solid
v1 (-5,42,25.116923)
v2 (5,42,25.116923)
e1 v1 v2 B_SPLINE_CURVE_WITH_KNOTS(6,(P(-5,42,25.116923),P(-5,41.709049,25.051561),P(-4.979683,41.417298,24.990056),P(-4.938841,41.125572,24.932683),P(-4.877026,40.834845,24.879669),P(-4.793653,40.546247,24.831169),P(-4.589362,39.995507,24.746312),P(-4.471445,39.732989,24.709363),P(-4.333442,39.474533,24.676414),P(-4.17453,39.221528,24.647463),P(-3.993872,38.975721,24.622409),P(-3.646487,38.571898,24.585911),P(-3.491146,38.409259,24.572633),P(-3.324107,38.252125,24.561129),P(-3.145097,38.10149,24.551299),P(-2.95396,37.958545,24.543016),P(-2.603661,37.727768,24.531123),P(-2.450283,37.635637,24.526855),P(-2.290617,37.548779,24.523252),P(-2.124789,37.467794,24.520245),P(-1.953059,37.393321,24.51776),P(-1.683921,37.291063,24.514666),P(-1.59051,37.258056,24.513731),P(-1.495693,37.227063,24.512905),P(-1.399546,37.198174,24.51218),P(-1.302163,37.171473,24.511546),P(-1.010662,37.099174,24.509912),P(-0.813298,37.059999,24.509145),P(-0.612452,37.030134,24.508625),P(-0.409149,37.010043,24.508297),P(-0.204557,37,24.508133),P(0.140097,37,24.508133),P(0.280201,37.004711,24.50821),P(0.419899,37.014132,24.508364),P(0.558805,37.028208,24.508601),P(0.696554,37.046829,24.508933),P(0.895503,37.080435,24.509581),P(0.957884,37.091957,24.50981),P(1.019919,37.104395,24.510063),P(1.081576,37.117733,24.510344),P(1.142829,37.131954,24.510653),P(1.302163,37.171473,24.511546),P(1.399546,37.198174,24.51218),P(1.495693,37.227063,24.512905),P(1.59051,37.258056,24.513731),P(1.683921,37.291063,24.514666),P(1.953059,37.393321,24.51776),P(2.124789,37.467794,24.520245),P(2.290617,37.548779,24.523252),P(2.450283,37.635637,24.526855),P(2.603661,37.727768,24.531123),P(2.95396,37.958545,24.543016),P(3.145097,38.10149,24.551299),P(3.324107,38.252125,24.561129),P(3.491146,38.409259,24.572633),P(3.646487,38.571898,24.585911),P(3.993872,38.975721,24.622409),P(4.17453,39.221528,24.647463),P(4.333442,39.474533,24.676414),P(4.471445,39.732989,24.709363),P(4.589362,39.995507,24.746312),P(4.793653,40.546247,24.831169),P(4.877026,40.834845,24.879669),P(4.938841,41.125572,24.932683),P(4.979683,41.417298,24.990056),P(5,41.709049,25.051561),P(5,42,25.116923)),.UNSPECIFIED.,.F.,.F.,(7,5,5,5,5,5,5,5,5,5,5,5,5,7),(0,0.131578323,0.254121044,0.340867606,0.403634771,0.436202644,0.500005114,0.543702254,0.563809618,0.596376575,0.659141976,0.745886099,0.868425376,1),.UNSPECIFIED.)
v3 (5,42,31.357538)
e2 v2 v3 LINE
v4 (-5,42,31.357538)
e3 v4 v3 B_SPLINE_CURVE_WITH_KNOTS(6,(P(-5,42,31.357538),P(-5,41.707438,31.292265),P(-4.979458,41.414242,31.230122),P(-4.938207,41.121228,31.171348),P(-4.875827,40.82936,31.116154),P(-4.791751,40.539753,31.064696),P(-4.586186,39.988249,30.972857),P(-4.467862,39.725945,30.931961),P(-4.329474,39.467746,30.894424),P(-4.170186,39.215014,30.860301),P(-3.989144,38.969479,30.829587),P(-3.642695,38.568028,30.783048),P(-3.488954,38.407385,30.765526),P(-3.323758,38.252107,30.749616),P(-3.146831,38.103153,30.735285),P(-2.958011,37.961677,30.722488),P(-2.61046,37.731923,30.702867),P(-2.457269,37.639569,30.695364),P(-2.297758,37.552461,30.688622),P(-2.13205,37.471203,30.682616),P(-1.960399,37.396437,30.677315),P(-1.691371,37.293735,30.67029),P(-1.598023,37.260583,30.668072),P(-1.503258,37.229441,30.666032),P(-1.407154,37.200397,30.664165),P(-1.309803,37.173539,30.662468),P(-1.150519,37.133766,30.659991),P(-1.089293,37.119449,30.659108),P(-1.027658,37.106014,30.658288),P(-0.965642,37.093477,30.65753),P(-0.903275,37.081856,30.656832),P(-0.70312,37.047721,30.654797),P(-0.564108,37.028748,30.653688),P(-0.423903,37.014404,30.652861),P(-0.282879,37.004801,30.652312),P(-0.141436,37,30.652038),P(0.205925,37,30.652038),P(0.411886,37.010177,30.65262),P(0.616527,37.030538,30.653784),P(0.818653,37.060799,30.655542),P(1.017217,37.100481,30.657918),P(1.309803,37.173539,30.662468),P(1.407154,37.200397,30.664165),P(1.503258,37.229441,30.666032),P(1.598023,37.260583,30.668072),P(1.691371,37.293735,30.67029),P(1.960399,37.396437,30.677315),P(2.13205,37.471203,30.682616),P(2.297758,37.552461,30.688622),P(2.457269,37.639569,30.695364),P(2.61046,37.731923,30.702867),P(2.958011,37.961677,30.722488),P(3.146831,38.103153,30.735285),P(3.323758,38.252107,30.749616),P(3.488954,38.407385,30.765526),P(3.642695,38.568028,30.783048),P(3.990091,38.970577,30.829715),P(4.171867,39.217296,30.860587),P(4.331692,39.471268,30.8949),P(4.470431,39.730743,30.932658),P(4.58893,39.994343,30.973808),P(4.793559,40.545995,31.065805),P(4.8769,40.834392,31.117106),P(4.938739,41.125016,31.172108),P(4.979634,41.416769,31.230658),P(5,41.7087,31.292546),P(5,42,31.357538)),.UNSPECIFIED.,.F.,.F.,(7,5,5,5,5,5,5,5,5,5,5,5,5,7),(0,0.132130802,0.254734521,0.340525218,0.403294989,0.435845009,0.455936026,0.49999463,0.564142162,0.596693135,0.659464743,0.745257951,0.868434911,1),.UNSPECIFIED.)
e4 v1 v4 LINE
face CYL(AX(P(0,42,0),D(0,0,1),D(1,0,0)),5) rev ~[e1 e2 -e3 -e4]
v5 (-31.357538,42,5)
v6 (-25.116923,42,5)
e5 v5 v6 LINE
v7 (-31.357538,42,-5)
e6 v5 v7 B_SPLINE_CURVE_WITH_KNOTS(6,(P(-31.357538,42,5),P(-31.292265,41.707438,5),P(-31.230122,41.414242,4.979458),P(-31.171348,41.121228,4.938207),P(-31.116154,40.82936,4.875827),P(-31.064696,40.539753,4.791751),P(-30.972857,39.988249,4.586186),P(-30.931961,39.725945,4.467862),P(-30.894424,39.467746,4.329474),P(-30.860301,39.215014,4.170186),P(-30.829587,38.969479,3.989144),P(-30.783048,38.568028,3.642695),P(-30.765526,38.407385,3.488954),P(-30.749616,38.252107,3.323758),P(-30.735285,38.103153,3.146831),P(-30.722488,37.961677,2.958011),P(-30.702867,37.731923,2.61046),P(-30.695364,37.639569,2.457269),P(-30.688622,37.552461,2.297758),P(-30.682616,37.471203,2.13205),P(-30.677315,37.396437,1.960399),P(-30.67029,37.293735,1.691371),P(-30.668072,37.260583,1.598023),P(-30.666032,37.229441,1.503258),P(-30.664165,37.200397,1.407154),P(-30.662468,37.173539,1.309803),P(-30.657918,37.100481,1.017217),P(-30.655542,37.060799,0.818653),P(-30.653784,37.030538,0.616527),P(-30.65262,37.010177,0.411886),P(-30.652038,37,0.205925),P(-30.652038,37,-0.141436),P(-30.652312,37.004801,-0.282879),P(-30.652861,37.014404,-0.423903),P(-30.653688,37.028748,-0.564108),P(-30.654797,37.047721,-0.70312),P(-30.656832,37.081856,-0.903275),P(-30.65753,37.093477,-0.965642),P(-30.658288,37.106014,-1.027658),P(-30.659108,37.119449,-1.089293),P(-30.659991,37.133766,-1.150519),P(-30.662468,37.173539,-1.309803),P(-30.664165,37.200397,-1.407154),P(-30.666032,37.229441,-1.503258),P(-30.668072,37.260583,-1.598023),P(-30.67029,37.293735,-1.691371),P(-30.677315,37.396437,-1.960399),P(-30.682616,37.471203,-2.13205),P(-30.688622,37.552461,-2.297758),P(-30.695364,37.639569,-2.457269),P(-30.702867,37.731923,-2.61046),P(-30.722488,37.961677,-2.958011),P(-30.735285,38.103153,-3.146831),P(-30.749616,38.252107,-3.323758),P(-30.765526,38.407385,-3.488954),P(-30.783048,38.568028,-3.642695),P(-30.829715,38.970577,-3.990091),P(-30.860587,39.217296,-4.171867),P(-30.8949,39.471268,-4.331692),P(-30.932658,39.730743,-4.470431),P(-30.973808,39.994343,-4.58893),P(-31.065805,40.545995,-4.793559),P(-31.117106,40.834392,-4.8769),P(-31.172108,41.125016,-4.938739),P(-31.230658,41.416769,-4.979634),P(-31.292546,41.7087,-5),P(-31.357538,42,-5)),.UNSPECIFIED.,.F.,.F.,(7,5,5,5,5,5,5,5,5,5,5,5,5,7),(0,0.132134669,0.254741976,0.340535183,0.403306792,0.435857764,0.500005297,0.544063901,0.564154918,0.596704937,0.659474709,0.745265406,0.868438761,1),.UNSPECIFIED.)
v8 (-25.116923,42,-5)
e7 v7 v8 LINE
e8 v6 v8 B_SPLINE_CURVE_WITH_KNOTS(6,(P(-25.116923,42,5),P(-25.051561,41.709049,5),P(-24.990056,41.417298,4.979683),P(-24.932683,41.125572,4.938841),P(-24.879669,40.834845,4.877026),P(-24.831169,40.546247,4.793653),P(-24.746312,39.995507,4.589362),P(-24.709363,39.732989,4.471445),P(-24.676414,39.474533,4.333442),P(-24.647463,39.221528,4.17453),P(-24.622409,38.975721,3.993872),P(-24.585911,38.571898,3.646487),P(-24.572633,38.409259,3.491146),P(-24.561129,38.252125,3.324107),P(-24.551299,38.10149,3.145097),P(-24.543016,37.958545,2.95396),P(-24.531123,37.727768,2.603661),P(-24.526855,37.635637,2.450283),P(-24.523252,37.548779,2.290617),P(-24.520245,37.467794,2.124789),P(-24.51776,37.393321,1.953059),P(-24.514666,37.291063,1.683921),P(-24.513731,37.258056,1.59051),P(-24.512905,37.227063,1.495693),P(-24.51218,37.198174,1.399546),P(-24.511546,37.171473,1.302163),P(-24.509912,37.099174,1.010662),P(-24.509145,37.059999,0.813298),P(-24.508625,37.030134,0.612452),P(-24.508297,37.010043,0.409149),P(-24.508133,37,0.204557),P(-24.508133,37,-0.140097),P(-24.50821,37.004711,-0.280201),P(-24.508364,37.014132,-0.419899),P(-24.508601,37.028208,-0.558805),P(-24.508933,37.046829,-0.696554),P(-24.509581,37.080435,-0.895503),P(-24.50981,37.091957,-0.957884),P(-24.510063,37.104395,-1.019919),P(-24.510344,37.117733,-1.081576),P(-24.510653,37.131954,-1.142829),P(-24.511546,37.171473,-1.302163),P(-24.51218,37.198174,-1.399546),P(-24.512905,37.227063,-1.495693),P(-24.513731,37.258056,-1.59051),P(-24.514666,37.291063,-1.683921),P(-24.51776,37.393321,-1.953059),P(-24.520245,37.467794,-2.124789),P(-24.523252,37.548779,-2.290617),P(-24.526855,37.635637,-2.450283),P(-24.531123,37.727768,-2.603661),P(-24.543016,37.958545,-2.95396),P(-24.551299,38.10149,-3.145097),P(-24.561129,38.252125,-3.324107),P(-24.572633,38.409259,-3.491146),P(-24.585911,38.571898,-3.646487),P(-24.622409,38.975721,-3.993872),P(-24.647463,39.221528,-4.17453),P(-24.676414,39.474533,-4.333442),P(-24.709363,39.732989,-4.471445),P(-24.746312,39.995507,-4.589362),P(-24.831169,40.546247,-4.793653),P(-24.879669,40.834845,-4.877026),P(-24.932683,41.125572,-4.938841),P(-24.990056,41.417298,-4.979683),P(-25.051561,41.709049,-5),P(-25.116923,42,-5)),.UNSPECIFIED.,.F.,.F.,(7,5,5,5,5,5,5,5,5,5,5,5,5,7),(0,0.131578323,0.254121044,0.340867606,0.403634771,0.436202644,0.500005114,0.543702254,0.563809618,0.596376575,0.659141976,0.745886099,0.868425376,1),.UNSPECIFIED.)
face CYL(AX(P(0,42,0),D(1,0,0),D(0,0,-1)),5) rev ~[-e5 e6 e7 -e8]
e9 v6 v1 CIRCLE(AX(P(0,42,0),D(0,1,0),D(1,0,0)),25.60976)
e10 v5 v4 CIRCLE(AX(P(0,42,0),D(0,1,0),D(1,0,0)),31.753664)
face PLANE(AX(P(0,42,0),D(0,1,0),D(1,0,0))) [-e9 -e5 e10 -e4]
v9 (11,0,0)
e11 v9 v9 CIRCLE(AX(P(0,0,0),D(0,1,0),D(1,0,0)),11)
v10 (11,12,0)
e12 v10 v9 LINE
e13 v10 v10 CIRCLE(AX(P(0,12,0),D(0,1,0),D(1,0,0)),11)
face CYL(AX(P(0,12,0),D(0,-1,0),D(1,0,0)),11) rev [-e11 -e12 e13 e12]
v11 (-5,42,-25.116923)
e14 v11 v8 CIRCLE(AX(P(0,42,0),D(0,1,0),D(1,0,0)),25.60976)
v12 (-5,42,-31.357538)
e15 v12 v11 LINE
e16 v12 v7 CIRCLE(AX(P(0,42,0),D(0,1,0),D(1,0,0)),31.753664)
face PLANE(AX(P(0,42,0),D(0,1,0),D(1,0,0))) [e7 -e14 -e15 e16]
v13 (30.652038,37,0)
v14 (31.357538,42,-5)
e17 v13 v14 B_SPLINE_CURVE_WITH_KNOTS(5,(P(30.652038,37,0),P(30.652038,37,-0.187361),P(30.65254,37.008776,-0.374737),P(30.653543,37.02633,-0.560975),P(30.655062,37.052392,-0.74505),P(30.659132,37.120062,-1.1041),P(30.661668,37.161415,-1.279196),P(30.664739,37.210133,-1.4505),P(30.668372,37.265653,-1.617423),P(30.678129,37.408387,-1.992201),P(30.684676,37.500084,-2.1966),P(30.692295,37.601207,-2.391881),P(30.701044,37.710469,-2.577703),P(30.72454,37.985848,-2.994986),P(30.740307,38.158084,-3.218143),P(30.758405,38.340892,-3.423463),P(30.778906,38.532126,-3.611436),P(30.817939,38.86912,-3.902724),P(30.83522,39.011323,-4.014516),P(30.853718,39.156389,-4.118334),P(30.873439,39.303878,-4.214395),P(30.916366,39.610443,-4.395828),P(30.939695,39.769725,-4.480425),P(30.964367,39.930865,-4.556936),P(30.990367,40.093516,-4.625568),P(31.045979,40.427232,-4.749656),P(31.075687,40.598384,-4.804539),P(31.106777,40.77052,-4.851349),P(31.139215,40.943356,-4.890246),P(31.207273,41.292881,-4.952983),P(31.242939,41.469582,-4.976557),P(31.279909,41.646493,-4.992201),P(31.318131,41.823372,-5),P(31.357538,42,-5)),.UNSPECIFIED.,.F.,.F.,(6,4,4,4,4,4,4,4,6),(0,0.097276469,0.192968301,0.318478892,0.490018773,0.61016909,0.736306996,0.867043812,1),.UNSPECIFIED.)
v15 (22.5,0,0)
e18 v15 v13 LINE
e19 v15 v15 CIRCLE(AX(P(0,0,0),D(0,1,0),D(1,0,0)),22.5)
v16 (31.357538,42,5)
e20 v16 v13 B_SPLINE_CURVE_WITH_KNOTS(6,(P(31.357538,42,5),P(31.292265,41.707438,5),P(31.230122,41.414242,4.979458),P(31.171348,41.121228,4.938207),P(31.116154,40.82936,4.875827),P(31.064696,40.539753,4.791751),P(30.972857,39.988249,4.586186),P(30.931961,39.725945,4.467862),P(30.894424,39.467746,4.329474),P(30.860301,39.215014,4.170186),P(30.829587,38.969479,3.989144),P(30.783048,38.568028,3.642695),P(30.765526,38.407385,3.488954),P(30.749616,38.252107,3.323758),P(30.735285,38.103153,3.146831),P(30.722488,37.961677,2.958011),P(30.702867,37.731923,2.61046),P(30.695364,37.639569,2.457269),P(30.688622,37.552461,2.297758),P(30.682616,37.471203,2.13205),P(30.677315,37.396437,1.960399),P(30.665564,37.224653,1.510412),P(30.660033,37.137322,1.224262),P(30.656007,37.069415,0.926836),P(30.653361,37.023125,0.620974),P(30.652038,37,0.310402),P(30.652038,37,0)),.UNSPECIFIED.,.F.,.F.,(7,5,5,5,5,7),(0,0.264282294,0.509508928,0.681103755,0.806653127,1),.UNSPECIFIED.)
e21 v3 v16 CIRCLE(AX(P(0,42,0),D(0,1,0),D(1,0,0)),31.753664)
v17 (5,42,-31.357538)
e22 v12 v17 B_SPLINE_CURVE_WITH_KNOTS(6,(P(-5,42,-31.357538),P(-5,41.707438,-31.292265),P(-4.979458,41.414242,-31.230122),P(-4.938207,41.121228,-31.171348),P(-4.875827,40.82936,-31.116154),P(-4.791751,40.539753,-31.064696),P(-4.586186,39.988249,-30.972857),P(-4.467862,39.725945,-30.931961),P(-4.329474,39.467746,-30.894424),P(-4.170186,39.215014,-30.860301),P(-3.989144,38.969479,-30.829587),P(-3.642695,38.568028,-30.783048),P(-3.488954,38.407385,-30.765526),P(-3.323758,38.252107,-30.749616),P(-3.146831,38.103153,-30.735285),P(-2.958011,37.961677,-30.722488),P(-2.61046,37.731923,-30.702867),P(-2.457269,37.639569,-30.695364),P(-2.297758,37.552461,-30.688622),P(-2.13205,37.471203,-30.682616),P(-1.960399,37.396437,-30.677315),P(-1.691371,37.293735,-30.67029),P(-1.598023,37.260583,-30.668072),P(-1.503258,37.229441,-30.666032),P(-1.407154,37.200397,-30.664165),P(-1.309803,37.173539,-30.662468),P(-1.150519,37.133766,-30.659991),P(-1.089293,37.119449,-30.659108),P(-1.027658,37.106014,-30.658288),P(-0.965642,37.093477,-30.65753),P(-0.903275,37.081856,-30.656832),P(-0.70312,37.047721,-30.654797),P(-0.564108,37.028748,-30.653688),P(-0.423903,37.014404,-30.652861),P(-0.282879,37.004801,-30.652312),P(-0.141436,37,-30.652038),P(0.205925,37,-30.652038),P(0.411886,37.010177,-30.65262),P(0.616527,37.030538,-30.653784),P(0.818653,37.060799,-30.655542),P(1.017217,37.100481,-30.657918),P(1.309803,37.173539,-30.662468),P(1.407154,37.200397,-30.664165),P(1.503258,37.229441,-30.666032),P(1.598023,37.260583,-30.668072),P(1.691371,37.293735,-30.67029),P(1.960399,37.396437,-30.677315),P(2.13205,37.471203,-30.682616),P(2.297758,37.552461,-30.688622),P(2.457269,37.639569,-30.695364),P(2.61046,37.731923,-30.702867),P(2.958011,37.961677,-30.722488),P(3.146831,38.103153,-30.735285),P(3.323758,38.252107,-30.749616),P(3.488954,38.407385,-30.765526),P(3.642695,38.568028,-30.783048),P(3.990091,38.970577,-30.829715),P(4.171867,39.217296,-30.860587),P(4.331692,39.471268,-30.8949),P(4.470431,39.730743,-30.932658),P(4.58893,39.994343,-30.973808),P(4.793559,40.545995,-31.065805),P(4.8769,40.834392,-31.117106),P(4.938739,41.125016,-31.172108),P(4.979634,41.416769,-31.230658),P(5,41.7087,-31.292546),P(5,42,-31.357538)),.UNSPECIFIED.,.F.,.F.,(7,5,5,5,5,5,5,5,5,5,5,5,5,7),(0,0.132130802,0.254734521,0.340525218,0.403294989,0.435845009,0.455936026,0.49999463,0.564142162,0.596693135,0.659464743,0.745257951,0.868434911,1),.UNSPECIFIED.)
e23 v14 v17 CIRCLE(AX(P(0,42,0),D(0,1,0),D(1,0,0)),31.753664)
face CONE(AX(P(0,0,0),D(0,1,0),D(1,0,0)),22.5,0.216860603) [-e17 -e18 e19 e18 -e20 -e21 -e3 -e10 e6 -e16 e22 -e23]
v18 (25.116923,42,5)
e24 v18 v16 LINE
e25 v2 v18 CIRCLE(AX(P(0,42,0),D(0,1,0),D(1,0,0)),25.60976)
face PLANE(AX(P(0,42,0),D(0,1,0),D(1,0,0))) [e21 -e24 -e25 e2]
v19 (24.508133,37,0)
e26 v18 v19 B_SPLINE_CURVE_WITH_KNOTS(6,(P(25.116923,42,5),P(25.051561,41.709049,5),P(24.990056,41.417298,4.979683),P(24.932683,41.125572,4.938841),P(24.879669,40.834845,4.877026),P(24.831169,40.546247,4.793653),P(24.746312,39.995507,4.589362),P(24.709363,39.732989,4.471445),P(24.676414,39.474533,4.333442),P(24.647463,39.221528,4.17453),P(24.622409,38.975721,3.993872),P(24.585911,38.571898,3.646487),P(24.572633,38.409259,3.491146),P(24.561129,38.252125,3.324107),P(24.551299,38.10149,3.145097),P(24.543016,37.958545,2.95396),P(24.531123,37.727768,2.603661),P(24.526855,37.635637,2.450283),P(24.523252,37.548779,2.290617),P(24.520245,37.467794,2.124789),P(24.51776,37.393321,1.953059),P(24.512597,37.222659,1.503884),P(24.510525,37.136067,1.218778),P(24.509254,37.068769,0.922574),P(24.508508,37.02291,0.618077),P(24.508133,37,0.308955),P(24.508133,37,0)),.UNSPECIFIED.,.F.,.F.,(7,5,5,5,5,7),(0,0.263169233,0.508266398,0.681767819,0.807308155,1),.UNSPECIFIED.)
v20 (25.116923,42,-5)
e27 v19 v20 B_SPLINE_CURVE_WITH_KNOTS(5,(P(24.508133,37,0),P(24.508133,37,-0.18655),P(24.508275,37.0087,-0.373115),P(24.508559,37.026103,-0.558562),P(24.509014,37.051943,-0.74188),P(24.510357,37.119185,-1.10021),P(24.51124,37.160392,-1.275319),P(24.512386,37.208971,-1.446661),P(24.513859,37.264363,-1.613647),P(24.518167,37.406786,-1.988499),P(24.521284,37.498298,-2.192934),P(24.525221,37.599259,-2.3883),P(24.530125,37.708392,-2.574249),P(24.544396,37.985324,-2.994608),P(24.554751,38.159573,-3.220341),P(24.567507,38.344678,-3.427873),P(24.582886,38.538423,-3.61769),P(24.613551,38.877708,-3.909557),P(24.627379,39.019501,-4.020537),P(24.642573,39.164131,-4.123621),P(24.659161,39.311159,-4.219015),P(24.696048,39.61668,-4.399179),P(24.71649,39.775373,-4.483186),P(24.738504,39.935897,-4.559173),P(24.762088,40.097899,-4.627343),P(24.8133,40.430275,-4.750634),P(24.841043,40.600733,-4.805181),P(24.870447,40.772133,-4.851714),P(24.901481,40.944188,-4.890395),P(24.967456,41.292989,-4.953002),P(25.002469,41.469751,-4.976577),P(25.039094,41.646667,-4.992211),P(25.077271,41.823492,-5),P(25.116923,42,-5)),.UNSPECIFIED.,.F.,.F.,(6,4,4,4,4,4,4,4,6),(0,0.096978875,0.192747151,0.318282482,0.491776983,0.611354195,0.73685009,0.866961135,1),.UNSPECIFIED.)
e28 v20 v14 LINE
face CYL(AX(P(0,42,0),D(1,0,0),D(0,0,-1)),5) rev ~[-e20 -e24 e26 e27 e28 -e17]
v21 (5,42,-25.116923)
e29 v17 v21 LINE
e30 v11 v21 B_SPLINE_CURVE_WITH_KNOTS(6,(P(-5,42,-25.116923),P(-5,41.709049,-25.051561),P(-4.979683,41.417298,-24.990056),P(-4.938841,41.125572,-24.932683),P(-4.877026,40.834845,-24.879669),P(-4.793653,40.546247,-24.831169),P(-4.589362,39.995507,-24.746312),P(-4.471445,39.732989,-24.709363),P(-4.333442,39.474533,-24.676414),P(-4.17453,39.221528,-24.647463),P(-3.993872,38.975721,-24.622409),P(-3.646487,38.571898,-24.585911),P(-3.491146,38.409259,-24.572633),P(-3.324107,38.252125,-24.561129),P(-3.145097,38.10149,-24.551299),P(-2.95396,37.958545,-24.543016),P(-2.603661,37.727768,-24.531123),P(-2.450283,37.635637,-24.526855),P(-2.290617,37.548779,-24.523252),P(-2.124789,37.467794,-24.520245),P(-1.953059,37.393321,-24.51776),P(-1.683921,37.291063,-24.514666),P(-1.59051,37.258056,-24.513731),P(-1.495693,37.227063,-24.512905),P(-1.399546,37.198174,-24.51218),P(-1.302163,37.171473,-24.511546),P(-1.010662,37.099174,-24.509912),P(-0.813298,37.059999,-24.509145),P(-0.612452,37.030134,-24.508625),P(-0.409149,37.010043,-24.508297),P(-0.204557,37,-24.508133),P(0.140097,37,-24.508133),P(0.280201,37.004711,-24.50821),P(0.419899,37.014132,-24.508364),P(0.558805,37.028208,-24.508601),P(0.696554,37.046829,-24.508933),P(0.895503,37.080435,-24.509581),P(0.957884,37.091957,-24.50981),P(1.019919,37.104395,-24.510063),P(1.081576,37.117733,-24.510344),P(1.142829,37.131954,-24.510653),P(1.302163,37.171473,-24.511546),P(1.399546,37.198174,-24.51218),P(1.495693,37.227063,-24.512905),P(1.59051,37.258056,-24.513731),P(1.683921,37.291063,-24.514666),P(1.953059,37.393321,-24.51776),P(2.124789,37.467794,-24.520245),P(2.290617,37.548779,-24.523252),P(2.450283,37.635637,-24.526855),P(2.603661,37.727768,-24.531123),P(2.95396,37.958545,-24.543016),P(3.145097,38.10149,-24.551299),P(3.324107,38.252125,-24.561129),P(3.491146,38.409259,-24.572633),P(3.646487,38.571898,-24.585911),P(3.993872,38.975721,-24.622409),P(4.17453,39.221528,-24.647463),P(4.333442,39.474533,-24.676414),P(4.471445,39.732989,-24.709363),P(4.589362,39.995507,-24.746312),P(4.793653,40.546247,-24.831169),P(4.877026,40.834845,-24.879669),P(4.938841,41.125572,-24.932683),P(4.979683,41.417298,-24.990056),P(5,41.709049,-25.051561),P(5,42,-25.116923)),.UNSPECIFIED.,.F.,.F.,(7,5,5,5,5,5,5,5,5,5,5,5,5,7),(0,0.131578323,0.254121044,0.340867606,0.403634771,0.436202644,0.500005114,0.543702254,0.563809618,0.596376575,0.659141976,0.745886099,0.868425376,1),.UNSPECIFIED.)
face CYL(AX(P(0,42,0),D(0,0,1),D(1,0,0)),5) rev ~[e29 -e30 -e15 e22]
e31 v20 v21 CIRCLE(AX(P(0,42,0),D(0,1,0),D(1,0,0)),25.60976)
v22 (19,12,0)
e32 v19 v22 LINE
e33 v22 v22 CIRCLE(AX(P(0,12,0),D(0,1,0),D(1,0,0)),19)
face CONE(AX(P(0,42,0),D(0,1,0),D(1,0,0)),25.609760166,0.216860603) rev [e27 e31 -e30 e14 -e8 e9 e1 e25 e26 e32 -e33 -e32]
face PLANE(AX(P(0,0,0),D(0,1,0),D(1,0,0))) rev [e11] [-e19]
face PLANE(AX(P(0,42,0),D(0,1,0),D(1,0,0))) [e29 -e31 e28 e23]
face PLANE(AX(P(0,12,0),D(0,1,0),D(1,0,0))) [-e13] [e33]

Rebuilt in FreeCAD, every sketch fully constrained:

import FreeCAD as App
import Part
import Sketcher
from FreeCAD import Vector


def add_polygon(sketch, points):
    """Adds a closed chain of lines whose ends are joined by coincident constraints."""
    first, n = sketch.GeometryCount, len(points)
    for a, b in zip(points, points[1:] + points[:1]):
        sketch.addGeometry(Part.LineSegment(App.Vector(*a, 0), App.Vector(*b, 0)), False)
    for i in range(n):
        sketch.addConstraint(Sketcher.Constraint("Coincident", first + i, 2, first + (i + 1) % n, 1))

doc = App.newDocument("Part")
body = doc.addObject("PartDesign::Body", "Body")

sketch1 = doc.addObject("Sketcher::SketchObject", "Sketch")
body.addObject(sketch1)
sketch1.AttachmentSupport = (doc.XY_Plane, [""])
sketch1.MapMode = "FlatFace"
add_polygon(sketch1, [(22, 0), (32, 42), (26, 42), (19, 12), (11, 12), (11, 0)])
sketch1.addConstraint([
    Sketcher.Constraint("Horizontal", 1),
    Sketcher.Constraint("Horizontal", 3),
    Sketcher.Constraint("Vertical", 4),
    Sketcher.Constraint("Horizontal", 5),
    Sketcher.Constraint("PointOnObject", 4, 2, -1),
    Sketcher.Constraint("Parallel", 0, 2),
    Sketcher.Constraint("DistanceX", 3, 2, 3, 1, 8.0),
    Sketcher.Constraint("DistanceY", 4, 2, 4, 1, 12.0),
    Sketcher.Constraint("DistanceX", 5, 1, 5, 2, 11.5),
    Sketcher.Constraint("DistanceY", -1, 1, 0, 2, 42.0),
    Sketcher.Constraint("DistanceX", -1, 1, 2, 2, 19.0),
    Sketcher.Constraint("Distance", 0, 43.007328),
])
revolution = doc.addObject("PartDesign::Revolution", "Revolution")
body.addObject(revolution)
revolution.Profile = sketch1
revolution.ReferenceAxis = (sketch1, ["V_Axis"])
revolution.Angle = 360

sketch2 = doc.addObject("Sketcher::SketchObject", "Sketch001")
body.addObject(sketch2)
sketch2.AttachmentSupport = (doc.XY_Plane, [""])
sketch2.MapMode = "FlatFace"
sketch2.addGeometry(Part.Circle(Vector(0, 42, 0), Vector(0, 0, 1), 5), False)
sketch2.addConstraint([
    Sketcher.Constraint("PointOnObject", 0, 3, -2),
    Sketcher.Constraint("Diameter", 0, 10.0),
    Sketcher.Constraint("DistanceY", -1, 1, 0, 3, 42.0),
])
pocket1 = doc.addObject("PartDesign::Pocket", "Pocket")
body.addObject(pocket1)
pocket1.Profile = sketch2
pocket1.Length = 71
pocket1.Midplane = True
doc.recompute()

polarpattern = doc.addObject("PartDesign::PolarPattern", "PolarPattern")
body.addObject(polarpattern)
polarpattern.Originals = [pocket1]
polarpattern.Axis = (doc.Y_Axis, [""])
polarpattern.Angle = 360
polarpattern.Occurrences = 4
body.Tip = polarpattern

doc.recompute()
